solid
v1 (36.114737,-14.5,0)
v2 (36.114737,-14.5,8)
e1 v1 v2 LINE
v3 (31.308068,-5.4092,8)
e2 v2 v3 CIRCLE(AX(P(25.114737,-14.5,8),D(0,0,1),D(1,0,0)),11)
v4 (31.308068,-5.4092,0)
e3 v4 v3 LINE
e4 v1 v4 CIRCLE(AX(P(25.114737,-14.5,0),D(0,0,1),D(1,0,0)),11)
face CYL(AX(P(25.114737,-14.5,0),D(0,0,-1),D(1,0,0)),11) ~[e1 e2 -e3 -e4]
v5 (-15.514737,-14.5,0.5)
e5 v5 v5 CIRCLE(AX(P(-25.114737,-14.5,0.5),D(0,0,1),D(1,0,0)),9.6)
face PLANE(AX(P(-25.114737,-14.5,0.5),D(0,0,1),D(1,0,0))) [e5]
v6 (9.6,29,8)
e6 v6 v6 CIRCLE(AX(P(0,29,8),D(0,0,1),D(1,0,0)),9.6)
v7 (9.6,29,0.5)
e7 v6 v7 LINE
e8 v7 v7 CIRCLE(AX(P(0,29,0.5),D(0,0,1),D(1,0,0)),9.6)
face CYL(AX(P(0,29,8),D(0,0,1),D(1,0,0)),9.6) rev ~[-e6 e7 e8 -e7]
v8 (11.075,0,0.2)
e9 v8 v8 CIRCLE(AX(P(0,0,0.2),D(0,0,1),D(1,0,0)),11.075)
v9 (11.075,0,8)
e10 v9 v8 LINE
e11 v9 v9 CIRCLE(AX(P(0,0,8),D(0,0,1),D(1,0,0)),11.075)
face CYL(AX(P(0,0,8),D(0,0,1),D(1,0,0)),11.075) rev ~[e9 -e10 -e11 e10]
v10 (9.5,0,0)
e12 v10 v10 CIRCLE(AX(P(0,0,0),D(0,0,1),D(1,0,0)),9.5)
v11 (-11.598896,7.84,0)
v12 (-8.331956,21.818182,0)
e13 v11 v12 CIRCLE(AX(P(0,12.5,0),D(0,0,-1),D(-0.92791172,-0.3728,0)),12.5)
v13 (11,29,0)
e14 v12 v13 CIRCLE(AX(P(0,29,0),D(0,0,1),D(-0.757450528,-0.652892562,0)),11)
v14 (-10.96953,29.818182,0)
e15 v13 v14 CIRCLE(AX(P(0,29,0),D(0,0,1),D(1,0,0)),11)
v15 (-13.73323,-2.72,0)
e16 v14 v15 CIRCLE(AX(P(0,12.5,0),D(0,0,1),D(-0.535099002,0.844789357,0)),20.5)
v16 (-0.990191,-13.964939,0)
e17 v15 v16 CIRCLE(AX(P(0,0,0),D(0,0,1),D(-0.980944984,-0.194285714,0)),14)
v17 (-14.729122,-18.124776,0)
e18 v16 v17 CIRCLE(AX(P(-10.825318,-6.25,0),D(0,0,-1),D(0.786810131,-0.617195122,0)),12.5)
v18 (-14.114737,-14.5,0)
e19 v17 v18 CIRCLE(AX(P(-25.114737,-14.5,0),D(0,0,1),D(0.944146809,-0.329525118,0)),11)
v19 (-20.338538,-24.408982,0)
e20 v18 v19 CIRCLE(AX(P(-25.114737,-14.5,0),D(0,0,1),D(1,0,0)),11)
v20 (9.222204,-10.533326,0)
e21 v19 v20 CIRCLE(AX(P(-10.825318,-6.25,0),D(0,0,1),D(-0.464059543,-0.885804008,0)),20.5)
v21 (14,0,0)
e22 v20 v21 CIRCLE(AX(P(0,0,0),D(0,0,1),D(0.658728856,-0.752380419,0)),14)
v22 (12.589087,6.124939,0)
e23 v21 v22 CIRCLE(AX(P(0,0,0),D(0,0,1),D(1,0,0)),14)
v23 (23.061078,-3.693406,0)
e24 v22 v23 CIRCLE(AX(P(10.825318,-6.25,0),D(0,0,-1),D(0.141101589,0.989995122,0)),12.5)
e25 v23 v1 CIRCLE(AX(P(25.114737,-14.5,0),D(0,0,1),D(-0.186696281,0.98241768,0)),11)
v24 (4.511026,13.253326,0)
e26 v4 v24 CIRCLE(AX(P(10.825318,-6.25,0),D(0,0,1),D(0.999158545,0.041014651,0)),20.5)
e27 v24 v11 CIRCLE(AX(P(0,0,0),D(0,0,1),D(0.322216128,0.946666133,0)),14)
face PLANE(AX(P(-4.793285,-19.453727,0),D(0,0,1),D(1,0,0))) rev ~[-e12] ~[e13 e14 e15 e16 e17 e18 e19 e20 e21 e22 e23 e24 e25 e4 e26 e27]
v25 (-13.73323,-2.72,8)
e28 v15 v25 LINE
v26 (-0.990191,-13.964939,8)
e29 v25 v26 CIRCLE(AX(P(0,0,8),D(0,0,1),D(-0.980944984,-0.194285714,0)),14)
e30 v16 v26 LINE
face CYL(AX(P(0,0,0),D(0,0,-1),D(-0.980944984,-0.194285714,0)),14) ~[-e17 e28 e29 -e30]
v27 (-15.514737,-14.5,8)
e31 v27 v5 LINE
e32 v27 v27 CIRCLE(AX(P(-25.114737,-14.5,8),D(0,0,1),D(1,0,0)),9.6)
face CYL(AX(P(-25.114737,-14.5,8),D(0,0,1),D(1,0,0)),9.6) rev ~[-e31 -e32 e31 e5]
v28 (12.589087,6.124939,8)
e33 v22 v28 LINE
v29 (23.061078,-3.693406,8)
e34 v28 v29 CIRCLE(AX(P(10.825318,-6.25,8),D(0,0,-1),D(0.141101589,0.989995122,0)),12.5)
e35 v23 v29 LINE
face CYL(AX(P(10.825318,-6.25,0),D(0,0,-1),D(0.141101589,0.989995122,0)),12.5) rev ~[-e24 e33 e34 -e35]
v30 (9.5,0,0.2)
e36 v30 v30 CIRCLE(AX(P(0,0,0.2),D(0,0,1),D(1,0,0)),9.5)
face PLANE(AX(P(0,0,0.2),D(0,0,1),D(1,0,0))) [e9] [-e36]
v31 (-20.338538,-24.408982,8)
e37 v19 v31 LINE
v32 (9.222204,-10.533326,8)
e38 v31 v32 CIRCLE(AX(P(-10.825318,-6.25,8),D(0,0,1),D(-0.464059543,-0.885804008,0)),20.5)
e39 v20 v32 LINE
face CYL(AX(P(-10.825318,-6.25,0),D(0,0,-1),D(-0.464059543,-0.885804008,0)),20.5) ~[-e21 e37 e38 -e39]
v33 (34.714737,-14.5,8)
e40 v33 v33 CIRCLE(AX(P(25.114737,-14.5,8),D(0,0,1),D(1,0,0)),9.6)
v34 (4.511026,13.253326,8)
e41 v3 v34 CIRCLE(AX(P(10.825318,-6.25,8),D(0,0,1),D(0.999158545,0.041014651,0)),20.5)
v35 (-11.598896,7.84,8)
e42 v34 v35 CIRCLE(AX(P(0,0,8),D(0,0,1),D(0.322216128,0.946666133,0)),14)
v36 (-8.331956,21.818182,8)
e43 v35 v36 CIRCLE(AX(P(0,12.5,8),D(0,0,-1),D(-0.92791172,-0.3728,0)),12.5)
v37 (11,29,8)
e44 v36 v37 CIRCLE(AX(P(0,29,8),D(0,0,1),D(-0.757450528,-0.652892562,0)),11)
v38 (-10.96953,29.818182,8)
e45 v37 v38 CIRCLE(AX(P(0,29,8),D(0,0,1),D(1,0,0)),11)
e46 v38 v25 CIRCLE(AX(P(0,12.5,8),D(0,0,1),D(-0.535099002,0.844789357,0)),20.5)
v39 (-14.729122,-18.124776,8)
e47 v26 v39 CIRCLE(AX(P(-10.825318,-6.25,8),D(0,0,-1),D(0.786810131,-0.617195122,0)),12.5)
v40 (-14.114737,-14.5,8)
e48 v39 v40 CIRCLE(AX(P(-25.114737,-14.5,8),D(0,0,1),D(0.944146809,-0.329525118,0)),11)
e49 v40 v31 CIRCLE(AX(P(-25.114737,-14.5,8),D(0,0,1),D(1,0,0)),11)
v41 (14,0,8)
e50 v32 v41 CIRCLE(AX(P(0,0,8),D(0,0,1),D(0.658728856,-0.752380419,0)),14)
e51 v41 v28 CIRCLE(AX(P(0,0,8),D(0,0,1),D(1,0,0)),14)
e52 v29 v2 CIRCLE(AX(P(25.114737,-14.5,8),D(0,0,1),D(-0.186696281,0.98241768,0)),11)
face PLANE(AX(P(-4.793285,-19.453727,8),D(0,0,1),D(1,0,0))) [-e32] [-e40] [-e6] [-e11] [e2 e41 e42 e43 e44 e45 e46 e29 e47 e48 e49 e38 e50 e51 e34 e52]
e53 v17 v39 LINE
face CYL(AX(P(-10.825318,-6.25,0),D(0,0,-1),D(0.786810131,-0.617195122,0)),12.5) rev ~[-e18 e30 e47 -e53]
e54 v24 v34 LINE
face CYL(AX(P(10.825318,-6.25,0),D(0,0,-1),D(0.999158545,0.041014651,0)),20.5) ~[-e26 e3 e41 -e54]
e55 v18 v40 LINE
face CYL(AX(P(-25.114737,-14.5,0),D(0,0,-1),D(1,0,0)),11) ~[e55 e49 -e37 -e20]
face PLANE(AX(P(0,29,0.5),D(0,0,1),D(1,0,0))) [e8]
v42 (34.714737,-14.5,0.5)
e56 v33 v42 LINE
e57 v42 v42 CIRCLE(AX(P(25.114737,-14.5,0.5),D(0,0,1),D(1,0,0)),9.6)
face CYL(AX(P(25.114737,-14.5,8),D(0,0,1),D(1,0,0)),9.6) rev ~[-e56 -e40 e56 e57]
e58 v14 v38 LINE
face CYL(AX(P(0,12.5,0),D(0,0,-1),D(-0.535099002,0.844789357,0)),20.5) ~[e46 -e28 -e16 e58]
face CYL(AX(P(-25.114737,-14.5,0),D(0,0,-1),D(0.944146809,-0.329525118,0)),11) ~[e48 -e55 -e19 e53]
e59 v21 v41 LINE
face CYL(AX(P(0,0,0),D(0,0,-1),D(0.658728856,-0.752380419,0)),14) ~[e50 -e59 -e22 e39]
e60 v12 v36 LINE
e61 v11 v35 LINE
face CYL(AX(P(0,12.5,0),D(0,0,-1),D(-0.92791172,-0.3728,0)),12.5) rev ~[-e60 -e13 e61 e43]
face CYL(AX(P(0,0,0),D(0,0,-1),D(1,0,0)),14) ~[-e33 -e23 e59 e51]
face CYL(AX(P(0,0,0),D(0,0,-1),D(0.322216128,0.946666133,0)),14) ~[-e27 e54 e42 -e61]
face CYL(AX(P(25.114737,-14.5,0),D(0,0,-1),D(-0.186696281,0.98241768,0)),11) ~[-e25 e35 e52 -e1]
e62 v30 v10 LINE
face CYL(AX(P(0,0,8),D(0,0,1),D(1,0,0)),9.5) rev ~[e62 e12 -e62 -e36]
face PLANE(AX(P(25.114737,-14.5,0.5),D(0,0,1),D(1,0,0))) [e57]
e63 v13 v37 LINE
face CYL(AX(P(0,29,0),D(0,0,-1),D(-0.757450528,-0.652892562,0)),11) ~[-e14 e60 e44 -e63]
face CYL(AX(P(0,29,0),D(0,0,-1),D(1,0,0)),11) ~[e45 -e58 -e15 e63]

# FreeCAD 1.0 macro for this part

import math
import FreeCAD as App
import Part
import Sketcher

V = App.Vector

doc = App.newDocument("Part")
body = doc.addObject("PartDesign::Body", "Body")

sketch1 = body.newObject("Sketcher::SketchObject", "Sketch")
sketch1.AttachmentSupport = (doc.getObject("XY_Plane"), [""])
sketch1.MapMode = "FlatFace"
sketch1.addGeometry([
    Part.ArcOfCircle(Part.Circle(V(-10.825318, -6.25, 0), V(0, 0, 1), 20.5), math.radians(-117.649374), math.radians(-12.0604)),
    Part.ArcOfCircle(Part.Circle(V(0, 0, 0), V(0, 0, 1), 14), math.radians(-48.797), math.radians(0)),
    Part.ArcOfCircle(Part.Circle(V(0, 0, 0), V(0, 0, 1), 14), math.radians(0), math.radians(25.944202)),
    Part.ArcOfCircle(Part.Circle(V(10.825318, -6.25, 0), V(0, 0, 1), 12.5), math.radians(11.801844), math.radians(81.888405)),
    Part.ArcOfCircle(Part.Circle(V(25.114737, -14.5, 0), V(0, 0, 1), 11), math.radians(100.760045), math.radians(360)),
    Part.ArcOfCircle(Part.Circle(V(25.114737, -14.5, 0), V(0, 0, 1), 11), math.radians(0), math.radians(55.734391)),
    Part.ArcOfCircle(Part.Circle(V(10.825318, -6.25, 0), V(0, 0, 1), 20.5), math.radians(2.350626), math.radians(107.9396)),
    Part.ArcOfCircle(Part.Circle(V(0, 0, 0), V(0, 0, 1), 14), math.radians(71.203), math.radians(145.944202)),
    Part.ArcOfCircle(Part.Circle(V(0, 12.5, 0), V(0, 0, 1), 12.5), math.radians(131.801844), math.radians(201.888405)),
    Part.ArcOfCircle(Part.Circle(V(0, 29, 0), V(0, 0, 1), 11), math.radians(-139.239955), math.radians(0)),
    Part.ArcOfCircle(Part.Circle(V(0, 29, 0), V(0, 0, 1), 11), math.radians(0), math.radians(175.734391)),
    Part.ArcOfCircle(Part.Circle(V(0, 12.5, 0), V(0, 0, 1), 20.5), math.radians(122.350626), math.radians(227.9396)),
    Part.ArcOfCircle(Part.Circle(V(0, 0, 0), V(0, 0, 1), 14), math.radians(-168.797), math.radians(-94.055798)),
    Part.ArcOfCircle(Part.Circle(V(-10.825318, -6.25, 0), V(0, 0, 1), 12.5), math.radians(-108.198156), math.radians(-38.111595)),
    Part.ArcOfCircle(Part.Circle(V(-25.114737, -14.5, 0), V(0, 0, 1), 11), math.radians(-19.239955), math.radians(0)),
    Part.ArcOfCircle(Part.Circle(V(-25.114737, -14.5, 0), V(0, 0, 1), 11), math.radians(0), math.radians(295.734391)),
], False)
sketch1.addConstraint([
    Sketcher.Constraint("Coincident", 0, 2, 1, 1),
    Sketcher.Constraint("Tangent", 1, 2, 2, 1),
    Sketcher.Constraint("Coincident", 2, 2, 3, 2),
    Sketcher.Constraint("Coincident", 3, 1, 4, 1),
    Sketcher.Constraint("Tangent", 4, 2, 5, 1),
    Sketcher.Constraint("Coincident", 5, 2, 6, 1),
    Sketcher.Constraint("Coincident", 6, 2, 7, 1),
    Sketcher.Constraint("Coincident", 7, 2, 8, 2),
    Sketcher.Constraint("Coincident", 8, 1, 9, 1),
    Sketcher.Constraint("Tangent", 9, 2, 10, 1),
    Sketcher.Constraint("Coincident", 10, 2, 11, 1),
    Sketcher.Constraint("Coincident", 11, 2, 12, 1),
    Sketcher.Constraint("Coincident", 12, 2, 13, 2),
    Sketcher.Constraint("Coincident", 13, 1, 14, 1),
    Sketcher.Constraint("Tangent", 14, 2, 15, 1),
    Sketcher.Constraint("Coincident", 15, 2, 0, 1),
    Sketcher.Constraint("Coincident", 1, 3, -1, 1),
    Sketcher.Constraint("Coincident", 7, 3, -1, 1),
    Sketcher.Constraint("Coincident", 12, 3, -1, 1),
    Sketcher.Constraint("Coincident", 6, 3, 3, 3),
    Sketcher.Constraint("Coincident", 11, 3, 8, 3),
    Sketcher.Constraint("Coincident", 13, 3, 0, 3),
    Sketcher.Constraint("Equal", 1, 2),
    Sketcher.Constraint("Equal", 4, 5),
    Sketcher.Constraint("Equal", 0, 6),
    Sketcher.Constraint("Equal", 2, 7),
    Sketcher.Constraint("Equal", 3, 8),
    Sketcher.Constraint("Equal", 5, 9),
    Sketcher.Constraint("Equal", 9, 10),
    Sketcher.Constraint("Equal", 6, 11),
    Sketcher.Constraint("Equal", 7, 12),
    Sketcher.Constraint("Equal", 8, 13),
    Sketcher.Constraint("Equal", 10, 14),
    Sketcher.Constraint("Equal", 14, 15),
    Sketcher.Constraint("Symmetric", 0, 3, 3, 3, -2),
    Sketcher.Constraint("Symmetric", 4, 3, 14, 3, -2),
    Sketcher.Constraint("PointOnObject", 8, 3, -2),
    Sketcher.Constraint("PointOnObject", 9, 3, -2),
    Sketcher.Constraint("PointOnObject", 1, 2, -1),
    Sketcher.Constraint("Horizontal", 15, 3, 4, 2),
    Sketcher.Constraint("Horizontal", 10, 3, 9, 2),
    Sketcher.Constraint("Horizontal", 4, 2, 14, 2),
    Sketcher.Constraint("Radius", 1, 14.0),
    Sketcher.Constraint("Radius", 4, 11.0),
    Sketcher.Constraint("Radius", 0, 20.5),
    Sketcher.Constraint("Radius", 3, 12.5),
    Sketcher.Constraint("DistanceY", -1, 1, 9, 3, 29.0),
    Sketcher.Constraint("DistanceY", 8, 1, 10, 2, 8.0),
    Sketcher.Constraint("DistanceY", 4, 3, -1, 1, 14.5),
    Sketcher.Constraint("DistanceY", 0, 3, -1, 1, 6.25),
    Sketcher.Constraint("DistanceY", 5, 2, -1, 1, 5.4092),
    Sketcher.Constraint("DistanceY", -1, 1, 2, 2, 6.124939),
])
pad1 = body.newObject("PartDesign::Pad", "Pad")
pad1.Profile = sketch1
pad1.Length = 8

sketch2 = body.newObject("Sketcher::SketchObject", "Sketch001")
sketch2.AttachmentSupport = (doc.getObject("XY_Plane"), [""])
sketch2.MapMode = "FlatFace"
sketch2.AttachmentOffset = App.Placement(V(0, 0, 8), App.Rotation())
sketch2.addGeometry([
    Part.Circle(V(0, 29, 0), V(0, 0, 1), 9.6),
    Part.Circle(V(-25.114737, -14.5, 0), V(0, 0, 1), 9.6),
    Part.Circle(V(25.114737, -14.5, 0), V(0, 0, 1), 9.6),
], False)
sketch2.addConstraint([
    Sketcher.Constraint("Equal", 0, 1),
    Sketcher.Constraint("Equal", 1, 2),
    Sketcher.Constraint("Symmetric", 1, 3, 2, 3, -2),
    Sketcher.Constraint("PointOnObject", 0, 3, -2),
    Sketcher.Constraint("Diameter", 0, 19.2),
    Sketcher.Constraint("DistanceY", -1, 1, 0, 3, 29.0),
    Sketcher.Constraint("DistanceY", 1, 3, -1, 1, 14.5),
    Sketcher.Constraint("DistanceX", 1, 3, -1, 1, 25.114737),
])
pocket1 = body.newObject("PartDesign::Pocket", "Pocket")
pocket1.Profile = sketch2
pocket1.Length = 7.5

sketch3 = body.newObject("Sketcher::SketchObject", "Sketch002")
sketch3.AttachmentSupport = (doc.getObject("XY_Plane"), [""])
sketch3.MapMode = "FlatFace"
sketch3.AttachmentOffset = App.Placement(V(0, 0, 8), App.Rotation())
sketch3.addGeometry(Part.Circle(V(0, 0, 0), V(0, 0, 1), 9.5), False)
sketch3.addConstraint([
    Sketcher.Constraint("Coincident", 0, 3, -1, 1),
    Sketcher.Constraint("Diameter", 0, 19.0),
])
pocket2 = body.newObject("PartDesign::Pocket", "Pocket001")
pocket2.Profile = sketch3
pocket2.Type = "ThroughAll"

sketch4 = body.newObject("Sketcher::SketchObject", "Sketch003")
sketch4.AttachmentSupport = (doc.getObject("XY_Plane"), [""])
sketch4.MapMode = "FlatFace"
sketch4.AttachmentOffset = App.Placement(V(0, 0, 8), App.Rotation())
sketch4.addGeometry(Part.Circle(V(0, 0, 0), V(0, 0, 1), 11.075), False)
sketch4.addConstraint([
    Sketcher.Constraint("Coincident", 0, 3, -1, 1),
    Sketcher.Constraint("Diameter", 0, 22.15),
])
pocket3 = body.newObject("PartDesign::Pocket", "Pocket002")
pocket3.Profile = sketch4
pocket3.Length = 7.8

doc.recompute()
